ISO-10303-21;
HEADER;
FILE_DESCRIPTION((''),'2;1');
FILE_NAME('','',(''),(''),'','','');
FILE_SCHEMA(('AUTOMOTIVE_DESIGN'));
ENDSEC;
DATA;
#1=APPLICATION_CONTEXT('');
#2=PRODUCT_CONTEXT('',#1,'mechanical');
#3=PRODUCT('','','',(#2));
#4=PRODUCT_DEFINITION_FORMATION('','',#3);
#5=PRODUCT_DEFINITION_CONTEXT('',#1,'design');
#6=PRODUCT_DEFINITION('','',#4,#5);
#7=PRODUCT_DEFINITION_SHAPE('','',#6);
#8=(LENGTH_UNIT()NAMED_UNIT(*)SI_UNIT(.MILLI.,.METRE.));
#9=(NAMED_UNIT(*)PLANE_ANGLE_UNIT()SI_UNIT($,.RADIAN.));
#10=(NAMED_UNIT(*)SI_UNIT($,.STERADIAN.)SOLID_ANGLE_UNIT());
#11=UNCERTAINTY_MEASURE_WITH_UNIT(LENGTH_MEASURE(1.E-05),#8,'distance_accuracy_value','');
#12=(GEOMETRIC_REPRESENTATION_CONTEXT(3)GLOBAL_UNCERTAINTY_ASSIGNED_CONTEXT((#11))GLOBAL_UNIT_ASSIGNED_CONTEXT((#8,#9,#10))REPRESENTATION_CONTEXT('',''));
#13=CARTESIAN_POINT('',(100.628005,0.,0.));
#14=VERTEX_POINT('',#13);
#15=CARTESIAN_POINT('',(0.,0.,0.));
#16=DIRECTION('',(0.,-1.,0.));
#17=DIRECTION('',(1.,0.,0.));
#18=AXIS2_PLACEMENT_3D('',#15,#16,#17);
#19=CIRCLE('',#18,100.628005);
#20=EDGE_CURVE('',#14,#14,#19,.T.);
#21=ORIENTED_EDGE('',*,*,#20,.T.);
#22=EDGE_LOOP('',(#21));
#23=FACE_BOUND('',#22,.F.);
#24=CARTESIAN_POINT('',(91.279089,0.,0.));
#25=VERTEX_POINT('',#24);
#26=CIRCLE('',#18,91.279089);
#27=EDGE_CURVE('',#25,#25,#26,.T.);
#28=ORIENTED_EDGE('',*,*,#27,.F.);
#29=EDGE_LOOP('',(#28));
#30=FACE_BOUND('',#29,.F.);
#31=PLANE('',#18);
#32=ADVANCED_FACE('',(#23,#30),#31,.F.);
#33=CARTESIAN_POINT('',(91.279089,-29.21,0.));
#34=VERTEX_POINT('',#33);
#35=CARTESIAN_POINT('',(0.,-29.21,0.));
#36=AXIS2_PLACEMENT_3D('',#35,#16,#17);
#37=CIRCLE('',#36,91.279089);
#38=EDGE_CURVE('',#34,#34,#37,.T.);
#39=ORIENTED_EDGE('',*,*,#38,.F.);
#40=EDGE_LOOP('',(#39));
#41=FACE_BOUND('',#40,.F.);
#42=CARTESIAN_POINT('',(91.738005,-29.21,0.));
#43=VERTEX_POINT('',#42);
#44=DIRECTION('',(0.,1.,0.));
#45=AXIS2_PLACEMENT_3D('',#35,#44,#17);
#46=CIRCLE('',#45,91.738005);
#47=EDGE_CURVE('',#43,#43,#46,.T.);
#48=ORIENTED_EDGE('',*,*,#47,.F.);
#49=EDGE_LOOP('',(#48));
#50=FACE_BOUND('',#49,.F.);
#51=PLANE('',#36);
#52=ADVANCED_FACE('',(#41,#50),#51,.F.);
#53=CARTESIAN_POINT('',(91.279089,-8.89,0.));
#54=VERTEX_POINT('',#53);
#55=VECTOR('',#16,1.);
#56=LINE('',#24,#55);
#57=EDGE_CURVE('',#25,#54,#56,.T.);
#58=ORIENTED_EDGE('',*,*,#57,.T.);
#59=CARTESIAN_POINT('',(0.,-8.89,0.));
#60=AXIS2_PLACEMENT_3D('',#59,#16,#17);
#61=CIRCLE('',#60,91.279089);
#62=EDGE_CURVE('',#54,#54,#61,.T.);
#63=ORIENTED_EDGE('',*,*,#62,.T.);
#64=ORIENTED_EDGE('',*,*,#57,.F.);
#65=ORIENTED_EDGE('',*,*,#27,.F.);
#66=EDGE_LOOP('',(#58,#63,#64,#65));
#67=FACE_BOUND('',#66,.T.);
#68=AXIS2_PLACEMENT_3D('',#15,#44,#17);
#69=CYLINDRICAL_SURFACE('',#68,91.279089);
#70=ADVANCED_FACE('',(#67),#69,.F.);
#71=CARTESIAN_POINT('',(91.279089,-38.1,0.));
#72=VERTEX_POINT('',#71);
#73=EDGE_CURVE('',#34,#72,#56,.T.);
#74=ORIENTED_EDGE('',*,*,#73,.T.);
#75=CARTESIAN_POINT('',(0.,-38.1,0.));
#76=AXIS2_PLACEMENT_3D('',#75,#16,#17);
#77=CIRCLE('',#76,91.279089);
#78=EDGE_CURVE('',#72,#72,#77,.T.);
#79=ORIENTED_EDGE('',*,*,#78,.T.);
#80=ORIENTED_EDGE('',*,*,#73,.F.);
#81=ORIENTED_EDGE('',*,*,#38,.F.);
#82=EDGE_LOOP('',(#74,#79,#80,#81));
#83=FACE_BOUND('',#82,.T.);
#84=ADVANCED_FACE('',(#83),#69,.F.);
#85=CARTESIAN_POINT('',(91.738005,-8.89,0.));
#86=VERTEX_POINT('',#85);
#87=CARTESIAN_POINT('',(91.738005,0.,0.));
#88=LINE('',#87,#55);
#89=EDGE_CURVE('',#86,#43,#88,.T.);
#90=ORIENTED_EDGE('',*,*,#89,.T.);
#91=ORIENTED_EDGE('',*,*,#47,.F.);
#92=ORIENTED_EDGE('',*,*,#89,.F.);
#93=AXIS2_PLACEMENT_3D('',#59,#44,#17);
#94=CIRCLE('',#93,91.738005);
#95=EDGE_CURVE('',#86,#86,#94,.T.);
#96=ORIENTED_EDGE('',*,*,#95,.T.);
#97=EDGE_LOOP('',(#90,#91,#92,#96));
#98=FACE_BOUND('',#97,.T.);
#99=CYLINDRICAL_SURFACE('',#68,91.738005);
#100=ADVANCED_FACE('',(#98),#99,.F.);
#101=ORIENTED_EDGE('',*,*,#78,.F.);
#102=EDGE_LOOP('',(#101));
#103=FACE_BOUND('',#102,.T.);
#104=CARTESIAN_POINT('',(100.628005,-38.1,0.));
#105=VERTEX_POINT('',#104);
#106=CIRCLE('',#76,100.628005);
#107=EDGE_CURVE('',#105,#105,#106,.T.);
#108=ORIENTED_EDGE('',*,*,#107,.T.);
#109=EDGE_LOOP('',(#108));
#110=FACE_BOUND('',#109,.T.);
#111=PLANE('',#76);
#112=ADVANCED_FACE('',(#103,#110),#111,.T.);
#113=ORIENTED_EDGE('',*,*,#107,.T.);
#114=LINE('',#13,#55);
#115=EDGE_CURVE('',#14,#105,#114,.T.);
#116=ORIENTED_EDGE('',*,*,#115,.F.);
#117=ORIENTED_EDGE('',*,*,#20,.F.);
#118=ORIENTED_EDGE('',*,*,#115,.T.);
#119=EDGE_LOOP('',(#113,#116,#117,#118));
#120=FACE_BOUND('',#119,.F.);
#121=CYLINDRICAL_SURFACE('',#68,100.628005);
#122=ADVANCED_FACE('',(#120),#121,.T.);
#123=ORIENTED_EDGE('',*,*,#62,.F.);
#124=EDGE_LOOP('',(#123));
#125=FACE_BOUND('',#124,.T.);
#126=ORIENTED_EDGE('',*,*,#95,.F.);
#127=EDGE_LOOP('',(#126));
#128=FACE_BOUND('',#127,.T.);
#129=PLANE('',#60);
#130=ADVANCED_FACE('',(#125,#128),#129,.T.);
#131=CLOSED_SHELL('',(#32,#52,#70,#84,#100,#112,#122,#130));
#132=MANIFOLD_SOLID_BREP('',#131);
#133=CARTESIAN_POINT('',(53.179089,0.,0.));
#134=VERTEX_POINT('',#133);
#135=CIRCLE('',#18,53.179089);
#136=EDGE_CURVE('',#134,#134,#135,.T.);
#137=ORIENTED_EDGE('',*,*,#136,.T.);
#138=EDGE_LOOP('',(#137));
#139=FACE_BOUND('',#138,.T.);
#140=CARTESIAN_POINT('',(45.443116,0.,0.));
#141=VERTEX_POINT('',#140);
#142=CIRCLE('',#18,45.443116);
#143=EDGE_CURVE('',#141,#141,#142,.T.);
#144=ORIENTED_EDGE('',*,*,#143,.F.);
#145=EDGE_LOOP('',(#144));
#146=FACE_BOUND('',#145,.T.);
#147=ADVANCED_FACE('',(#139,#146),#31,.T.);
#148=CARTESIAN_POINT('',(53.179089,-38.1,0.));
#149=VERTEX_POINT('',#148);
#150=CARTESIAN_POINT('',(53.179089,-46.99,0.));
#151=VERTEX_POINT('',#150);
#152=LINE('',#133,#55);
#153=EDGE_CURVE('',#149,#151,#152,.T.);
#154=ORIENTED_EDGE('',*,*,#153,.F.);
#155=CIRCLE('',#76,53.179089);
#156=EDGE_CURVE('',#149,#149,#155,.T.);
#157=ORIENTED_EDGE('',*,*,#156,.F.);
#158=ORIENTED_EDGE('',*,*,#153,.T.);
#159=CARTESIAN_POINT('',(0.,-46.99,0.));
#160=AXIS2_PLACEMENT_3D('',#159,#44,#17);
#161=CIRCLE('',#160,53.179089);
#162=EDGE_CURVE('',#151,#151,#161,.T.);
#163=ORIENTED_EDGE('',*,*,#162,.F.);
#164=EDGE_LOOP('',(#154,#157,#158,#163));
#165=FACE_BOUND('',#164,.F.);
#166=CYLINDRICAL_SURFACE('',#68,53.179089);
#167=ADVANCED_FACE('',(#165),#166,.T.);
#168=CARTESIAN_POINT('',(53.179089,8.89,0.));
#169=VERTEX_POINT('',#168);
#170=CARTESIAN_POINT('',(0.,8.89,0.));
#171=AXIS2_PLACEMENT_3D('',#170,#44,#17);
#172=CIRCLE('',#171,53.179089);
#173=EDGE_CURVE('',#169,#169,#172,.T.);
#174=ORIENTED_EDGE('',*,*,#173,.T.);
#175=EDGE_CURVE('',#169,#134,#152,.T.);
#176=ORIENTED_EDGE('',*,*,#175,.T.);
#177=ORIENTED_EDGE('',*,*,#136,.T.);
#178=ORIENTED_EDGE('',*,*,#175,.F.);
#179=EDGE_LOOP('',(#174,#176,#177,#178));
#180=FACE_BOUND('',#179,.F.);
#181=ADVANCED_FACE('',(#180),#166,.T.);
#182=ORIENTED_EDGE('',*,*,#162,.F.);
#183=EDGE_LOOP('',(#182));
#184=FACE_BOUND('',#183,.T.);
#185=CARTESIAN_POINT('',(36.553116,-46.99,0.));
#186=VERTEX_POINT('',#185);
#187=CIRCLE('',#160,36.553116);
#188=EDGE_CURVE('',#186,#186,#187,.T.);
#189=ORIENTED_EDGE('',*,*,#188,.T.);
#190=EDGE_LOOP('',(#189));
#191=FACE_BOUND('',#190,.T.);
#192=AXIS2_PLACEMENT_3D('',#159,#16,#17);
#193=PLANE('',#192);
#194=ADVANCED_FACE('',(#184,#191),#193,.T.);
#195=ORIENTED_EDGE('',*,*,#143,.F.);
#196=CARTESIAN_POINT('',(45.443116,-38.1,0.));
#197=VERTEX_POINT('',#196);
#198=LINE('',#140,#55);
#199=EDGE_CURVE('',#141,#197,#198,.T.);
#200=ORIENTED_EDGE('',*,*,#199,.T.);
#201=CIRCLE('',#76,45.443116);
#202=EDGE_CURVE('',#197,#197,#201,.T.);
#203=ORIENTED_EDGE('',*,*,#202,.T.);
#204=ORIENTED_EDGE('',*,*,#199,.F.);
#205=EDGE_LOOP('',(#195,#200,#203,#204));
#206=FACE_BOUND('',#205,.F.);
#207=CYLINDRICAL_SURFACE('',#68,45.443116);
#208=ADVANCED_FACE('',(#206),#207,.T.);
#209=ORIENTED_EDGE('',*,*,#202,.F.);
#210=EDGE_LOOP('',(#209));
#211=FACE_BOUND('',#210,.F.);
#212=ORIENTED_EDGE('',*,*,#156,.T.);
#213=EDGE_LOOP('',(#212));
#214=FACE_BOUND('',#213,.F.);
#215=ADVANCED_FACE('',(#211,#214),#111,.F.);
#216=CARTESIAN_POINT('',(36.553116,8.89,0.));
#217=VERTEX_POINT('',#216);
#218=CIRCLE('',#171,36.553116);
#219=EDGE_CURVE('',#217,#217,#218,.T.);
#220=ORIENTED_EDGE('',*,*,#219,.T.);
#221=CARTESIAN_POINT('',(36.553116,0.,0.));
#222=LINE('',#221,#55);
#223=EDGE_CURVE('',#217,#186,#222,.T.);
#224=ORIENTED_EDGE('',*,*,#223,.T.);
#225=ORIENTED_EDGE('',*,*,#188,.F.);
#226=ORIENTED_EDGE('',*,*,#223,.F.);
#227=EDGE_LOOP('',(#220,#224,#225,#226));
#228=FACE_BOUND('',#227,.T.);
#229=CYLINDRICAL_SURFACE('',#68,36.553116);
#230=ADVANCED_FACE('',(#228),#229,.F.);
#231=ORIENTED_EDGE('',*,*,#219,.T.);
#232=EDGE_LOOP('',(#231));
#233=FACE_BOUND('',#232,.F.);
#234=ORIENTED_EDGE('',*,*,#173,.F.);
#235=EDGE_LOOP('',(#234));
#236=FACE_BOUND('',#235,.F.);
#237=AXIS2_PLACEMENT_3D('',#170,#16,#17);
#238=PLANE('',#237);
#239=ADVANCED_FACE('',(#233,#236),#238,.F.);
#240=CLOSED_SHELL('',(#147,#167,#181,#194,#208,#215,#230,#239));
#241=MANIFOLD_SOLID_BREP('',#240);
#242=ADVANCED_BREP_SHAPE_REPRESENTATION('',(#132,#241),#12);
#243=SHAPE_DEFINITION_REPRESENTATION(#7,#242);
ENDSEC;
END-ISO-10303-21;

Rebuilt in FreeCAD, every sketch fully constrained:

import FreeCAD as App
import Part
import Sketcher

V = App.Vector
Q = App.Units.Quantity


def faces_at(feature, points):
    """Names of the faces that lie closest to the given points."""
    faces = feature.Shape.Faces
    near = lambda p: min(range(len(faces)), key=lambda i: faces[i].distToShape(Part.Vertex(*p))[0])
    return sorted({f"Face{near(p) + 1}" for p in points})

doc = App.newDocument("Part")
body = doc.addObject("PartDesign::Body", "Body")

sketch1 = body.newObject("Sketcher::SketchObject", "Sketch")
sketch1.AttachmentSupport = (doc.getObject("XZ_Plane"), [""])
sketch1.MapMode = "FlatFace"
sketch1.addGeometry(Part.Circle(V(0, 0, 0), V(0, 0, 1), 101), False)
sketch1.addGeometry(Part.Circle(V(0, 0, 0), V(0, 0, 1), 91), False)
sketch1.addConstraint(Sketcher.Constraint("Coincident", 0, 3, -1, 1))
sketch1.addConstraint(Sketcher.Constraint("Coincident", 1, 3, -1, 1))
sketch1.addConstraint(Sketcher.Constraint("Diameter", 0, 201.256009))
sketch1.addConstraint(Sketcher.Constraint("Diameter", 1, 182.558179))
pad1 = body.newObject("PartDesign::Pad", "Pad")
pad1.Profile = sketch1
pad1.Length = Q("1.5 in")
doc.recompute()

thickness = body.newObject("PartDesign::Thickness", "Thickness")
thickness.Base = (pad1, faces_at(pad1, [(-91.279, -19.05, 0)]))
thickness.Value = Q("0.35 in")
thickness.Reversed = True
thickness.Join = "Arc"
body2 = doc.addObject("PartDesign::Body", "Body001")

sketch2 = body2.newObject("Sketcher::SketchObject", "Sketch001")
sketch2.AttachmentSupport = (doc.getObject("XZ_Plane001"), [""])
sketch2.MapMode = "FlatFace"
sketch2.addGeometry(Part.Circle(V(0, 0, 0), V(0, 0, 1), 53), False)
sketch2.addGeometry(Part.Circle(V(0, 0, 0), V(0, 0, 1), 45), False)
sketch2.addConstraint(Sketcher.Constraint("Coincident", 0, 3, -1, 1))
sketch2.addConstraint(Sketcher.Constraint("Coincident", 1, 3, -1, 1))
sketch2.addConstraint(Sketcher.Constraint("Diameter", 0, 106.358179))
sketch2.addConstraint(Sketcher.Constraint("Diameter", 1, 90.886233))
pad2 = body2.newObject("PartDesign::Pad", "Pad001")
pad2.Profile = sketch2
pad2.Length = Q("1.5 in")
doc.recompute()

thickness2 = body2.newObject("PartDesign::Thickness", "Thickness001")
thickness2.Base = (pad2, faces_at(pad2, [(-53.179, -19.05, 0)]))
thickness2.Value = Q("0.35 in")
thickness2.Reversed = False
thickness2.Join = "Intersection"

doc.recompute()
